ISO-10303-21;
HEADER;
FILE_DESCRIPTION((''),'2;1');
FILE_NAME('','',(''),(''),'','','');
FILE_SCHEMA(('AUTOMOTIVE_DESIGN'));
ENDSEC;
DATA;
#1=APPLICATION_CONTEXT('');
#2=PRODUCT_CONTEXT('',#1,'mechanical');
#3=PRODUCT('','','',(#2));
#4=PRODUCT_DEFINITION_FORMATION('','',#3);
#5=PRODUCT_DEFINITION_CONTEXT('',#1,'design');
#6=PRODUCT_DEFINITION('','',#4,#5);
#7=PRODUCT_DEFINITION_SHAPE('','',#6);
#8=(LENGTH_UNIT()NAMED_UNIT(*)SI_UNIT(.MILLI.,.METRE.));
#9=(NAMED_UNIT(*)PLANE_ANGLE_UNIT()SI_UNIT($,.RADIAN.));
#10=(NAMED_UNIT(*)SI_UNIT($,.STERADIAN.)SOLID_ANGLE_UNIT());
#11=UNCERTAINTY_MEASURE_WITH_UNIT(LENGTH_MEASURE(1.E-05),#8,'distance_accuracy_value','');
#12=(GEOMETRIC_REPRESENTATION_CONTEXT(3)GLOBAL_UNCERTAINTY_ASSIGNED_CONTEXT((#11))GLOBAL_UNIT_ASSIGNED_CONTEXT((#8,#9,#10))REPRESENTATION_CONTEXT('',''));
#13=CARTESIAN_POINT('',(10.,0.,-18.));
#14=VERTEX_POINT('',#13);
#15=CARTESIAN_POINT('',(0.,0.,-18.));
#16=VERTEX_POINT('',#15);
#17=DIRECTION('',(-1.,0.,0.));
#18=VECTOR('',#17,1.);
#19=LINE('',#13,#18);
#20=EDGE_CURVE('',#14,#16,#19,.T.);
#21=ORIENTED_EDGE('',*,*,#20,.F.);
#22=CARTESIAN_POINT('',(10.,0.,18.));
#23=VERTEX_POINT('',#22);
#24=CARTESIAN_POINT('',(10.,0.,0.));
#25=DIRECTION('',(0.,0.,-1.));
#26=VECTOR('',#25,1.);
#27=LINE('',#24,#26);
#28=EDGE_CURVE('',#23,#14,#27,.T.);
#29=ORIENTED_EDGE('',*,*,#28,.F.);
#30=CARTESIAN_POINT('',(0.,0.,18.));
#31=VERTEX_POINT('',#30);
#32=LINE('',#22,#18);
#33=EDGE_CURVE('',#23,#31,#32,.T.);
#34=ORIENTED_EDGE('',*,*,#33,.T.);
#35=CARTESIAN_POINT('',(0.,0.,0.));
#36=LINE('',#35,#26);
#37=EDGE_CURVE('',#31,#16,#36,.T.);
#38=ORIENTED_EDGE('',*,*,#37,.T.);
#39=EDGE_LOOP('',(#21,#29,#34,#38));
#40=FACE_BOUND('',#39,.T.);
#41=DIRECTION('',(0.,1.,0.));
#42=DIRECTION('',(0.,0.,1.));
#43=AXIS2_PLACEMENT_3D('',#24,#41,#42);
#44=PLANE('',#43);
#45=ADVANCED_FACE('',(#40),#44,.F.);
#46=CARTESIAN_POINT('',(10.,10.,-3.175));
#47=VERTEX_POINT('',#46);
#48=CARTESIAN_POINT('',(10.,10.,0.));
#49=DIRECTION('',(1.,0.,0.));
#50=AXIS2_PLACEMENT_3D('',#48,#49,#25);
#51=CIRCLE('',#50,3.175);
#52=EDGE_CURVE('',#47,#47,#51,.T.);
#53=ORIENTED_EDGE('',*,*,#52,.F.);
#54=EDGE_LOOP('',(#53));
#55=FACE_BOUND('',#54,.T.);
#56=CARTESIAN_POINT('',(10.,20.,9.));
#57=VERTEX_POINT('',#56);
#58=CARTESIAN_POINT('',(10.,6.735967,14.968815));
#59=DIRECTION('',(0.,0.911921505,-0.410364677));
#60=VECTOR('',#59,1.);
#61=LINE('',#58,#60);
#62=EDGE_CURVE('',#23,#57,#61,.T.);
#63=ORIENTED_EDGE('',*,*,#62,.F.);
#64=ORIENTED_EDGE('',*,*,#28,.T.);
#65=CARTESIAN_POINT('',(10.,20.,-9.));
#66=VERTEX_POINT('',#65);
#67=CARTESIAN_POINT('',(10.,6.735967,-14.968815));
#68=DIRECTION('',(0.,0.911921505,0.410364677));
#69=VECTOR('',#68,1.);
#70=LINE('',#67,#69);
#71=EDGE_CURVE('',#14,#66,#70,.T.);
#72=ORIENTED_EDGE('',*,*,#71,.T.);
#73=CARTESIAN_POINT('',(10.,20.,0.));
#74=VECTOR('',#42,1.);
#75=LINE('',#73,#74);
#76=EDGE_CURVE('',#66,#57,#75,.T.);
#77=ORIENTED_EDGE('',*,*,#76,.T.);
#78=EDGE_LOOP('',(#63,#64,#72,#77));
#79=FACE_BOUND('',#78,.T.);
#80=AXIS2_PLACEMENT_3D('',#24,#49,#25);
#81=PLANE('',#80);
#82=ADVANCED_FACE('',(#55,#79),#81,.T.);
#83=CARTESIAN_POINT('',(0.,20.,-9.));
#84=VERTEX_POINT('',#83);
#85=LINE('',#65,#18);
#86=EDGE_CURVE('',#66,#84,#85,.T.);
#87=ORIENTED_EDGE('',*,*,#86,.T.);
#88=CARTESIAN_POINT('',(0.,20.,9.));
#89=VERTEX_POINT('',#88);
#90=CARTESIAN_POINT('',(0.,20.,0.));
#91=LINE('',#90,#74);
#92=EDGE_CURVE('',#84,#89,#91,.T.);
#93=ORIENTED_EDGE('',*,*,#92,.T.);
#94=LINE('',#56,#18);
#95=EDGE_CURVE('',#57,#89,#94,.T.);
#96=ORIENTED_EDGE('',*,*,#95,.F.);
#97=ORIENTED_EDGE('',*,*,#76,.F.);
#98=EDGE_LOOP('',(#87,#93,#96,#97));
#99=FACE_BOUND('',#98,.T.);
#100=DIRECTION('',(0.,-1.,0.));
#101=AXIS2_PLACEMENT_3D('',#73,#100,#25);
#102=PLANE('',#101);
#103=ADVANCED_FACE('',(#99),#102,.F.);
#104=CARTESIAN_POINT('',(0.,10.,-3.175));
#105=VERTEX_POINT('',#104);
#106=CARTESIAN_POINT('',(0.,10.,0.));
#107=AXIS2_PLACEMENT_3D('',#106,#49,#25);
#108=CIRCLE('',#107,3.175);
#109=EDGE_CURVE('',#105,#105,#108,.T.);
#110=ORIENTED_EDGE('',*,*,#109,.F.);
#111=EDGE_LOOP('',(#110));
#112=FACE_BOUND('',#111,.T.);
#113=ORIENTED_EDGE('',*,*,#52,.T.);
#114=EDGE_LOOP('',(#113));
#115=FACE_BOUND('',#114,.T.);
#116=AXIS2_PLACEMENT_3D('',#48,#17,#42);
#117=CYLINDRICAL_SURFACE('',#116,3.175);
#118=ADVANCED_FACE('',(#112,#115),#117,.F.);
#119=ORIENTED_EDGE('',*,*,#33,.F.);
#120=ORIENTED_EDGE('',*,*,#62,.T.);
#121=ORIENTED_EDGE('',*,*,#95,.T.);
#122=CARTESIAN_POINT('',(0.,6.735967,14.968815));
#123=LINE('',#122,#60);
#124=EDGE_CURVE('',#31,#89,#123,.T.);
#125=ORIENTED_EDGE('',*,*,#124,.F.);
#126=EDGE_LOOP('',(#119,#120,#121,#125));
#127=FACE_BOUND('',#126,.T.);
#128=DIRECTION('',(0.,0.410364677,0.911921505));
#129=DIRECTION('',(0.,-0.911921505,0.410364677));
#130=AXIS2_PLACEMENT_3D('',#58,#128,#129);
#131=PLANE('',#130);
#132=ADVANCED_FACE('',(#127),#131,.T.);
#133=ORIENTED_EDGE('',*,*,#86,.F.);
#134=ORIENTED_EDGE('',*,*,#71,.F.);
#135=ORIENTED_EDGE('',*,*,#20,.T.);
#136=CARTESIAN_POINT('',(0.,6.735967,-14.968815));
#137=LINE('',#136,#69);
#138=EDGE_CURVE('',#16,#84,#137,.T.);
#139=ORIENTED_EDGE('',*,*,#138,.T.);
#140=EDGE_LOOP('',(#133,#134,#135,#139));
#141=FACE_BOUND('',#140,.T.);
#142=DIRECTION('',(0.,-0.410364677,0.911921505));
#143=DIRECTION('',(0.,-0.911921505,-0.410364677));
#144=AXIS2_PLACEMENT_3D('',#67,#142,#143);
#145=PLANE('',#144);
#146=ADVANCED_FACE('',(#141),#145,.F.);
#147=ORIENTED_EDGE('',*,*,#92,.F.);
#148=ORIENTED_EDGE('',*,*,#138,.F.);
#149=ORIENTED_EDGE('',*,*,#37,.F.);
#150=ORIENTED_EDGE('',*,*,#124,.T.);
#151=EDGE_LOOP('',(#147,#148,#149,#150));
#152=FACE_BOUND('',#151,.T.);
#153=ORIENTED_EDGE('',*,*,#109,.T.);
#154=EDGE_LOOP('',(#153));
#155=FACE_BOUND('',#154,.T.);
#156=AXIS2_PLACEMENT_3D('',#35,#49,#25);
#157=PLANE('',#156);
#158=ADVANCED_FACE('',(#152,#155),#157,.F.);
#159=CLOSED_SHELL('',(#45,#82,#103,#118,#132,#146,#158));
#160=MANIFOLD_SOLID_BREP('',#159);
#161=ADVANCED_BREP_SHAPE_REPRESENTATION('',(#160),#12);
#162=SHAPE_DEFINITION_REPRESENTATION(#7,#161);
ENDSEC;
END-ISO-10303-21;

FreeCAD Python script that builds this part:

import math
import FreeCAD as App
import Part
import Sketcher
Q = App.Units.Quantity

doc = App.newDocument("Part")
params = doc.addObject("Spreadsheet::Sheet", "Params")
for row, (alias, value) in enumerate([
    ("sketch1_height", "18 mm"),
    ("sketch1_height2", "36 mm"),
    ("pad1_length", "10 mm"),
], start=1):
    params.set(f"A{row}", alias)
    params.set(f"B{row}", "=" + value)
    params.setAlias(f"B{row}", alias)

body = doc.addObject("PartDesign::Body", "Body")

# Sketch on YZ plane
sketch1 = body.newObject("Sketcher::SketchObject", "Sketch")
sketch1.AttachmentSupport = (doc.getObject("YZ_Plane"), [""])
sketch1.MapMode = "FlatFace"
sketch1.addGeometry(Part.LineSegment(App.Vector(0, -18, 0), App.Vector(20, -9, 0)), False)
sketch1.addGeometry(Part.LineSegment(App.Vector(20, -9, 0), App.Vector(20, 9, 0)), False)
sketch1.addGeometry(Part.LineSegment(App.Vector(20, 9, 0), App.Vector(0, 18, 0)), False)
sketch1.addGeometry(Part.LineSegment(App.Vector(0, 18, 0), App.Vector(0, -18, 0)), False)
sketch1.addGeometry(Part.ArcOfCircle(Part.Circle(App.Vector(10, 0, 0), App.Vector(0, 0, 1), 3.2), math.radians(-90), math.radians(0)), False)
sketch1.addGeometry(Part.ArcOfCircle(Part.Circle(App.Vector(10, 0, 0), App.Vector(0, 0, 1), 3.2), math.radians(-180), math.radians(-90)), False)
sketch1.addGeometry(Part.ArcOfCircle(Part.Circle(App.Vector(10, 0, 0), App.Vector(0, 0, 1), 3.2), math.radians(0), math.radians(180)), False)
sketch1.addConstraint(Sketcher.Constraint("Coincident", 0, 2, 1, 1))
sketch1.addConstraint(Sketcher.Constraint("Coincident", 1, 2, 2, 1))
sketch1.addConstraint(Sketcher.Constraint("Coincident", 2, 2, 3, 1))
sketch1.addConstraint(Sketcher.Constraint("Coincident", 3, 2, 0, 1))
sketch1.addConstraint(Sketcher.Constraint("Tangent", 4, 1, 5, 2))
sketch1.addConstraint(Sketcher.Constraint("Tangent", 5, 1, 6, 2))
sketch1.addConstraint(Sketcher.Constraint("Tangent", 6, 1, 4, 2))
sketch1.addConstraint(Sketcher.Constraint("Vertical", 1))
sketch1.addConstraint(Sketcher.Constraint("Vertical", 3))
sketch1.addConstraint(Sketcher.Constraint("Symmetric", 2, 2, 3, 2, -1, 1))
sketch1.addConstraint(Sketcher.Constraint("PointOnObject", 4, 3, -1))
sketch1.addConstraint(Sketcher.Constraint("PointOnObject", 5, 1, -1))
sketch1.addConstraint(Sketcher.Constraint("PointOnObject", 6, 1, -1))
sketch1.addConstraint(Sketcher.Constraint("Vertical", 6, 3, 4, 1))
sketch1.addConstraint(Sketcher.Constraint("Equal", 0, 2))
sketch1.addConstraint(Sketcher.Constraint("DistanceY", 1, 1, 1, 2, Q("18 mm")))
sketch1.addConstraint(Sketcher.Constraint("DistanceY", 3, 2, 3, 1, Q("36 mm")))
sketch1.addConstraint(Sketcher.Constraint("DistanceX", -1, 1, 4, 3, Q("10 mm")))
sketch1.addConstraint(Sketcher.Constraint("DistanceX", -1, 1, 0, 2, Q("20 mm")))
sketch1.addConstraint(Sketcher.Constraint("Radius", 4, Q("3.175 mm")))
sketch1.setExpression("Constraints[15]", "Params.sketch1_height")
sketch1.setExpression("Constraints[16]", "Params.sketch1_height2")
pad1 = body.newObject("PartDesign::Pad", "Pad")
pad1.Profile = sketch1
pad1.setExpression("Length", "Params.pad1_length")

doc.recompute()
